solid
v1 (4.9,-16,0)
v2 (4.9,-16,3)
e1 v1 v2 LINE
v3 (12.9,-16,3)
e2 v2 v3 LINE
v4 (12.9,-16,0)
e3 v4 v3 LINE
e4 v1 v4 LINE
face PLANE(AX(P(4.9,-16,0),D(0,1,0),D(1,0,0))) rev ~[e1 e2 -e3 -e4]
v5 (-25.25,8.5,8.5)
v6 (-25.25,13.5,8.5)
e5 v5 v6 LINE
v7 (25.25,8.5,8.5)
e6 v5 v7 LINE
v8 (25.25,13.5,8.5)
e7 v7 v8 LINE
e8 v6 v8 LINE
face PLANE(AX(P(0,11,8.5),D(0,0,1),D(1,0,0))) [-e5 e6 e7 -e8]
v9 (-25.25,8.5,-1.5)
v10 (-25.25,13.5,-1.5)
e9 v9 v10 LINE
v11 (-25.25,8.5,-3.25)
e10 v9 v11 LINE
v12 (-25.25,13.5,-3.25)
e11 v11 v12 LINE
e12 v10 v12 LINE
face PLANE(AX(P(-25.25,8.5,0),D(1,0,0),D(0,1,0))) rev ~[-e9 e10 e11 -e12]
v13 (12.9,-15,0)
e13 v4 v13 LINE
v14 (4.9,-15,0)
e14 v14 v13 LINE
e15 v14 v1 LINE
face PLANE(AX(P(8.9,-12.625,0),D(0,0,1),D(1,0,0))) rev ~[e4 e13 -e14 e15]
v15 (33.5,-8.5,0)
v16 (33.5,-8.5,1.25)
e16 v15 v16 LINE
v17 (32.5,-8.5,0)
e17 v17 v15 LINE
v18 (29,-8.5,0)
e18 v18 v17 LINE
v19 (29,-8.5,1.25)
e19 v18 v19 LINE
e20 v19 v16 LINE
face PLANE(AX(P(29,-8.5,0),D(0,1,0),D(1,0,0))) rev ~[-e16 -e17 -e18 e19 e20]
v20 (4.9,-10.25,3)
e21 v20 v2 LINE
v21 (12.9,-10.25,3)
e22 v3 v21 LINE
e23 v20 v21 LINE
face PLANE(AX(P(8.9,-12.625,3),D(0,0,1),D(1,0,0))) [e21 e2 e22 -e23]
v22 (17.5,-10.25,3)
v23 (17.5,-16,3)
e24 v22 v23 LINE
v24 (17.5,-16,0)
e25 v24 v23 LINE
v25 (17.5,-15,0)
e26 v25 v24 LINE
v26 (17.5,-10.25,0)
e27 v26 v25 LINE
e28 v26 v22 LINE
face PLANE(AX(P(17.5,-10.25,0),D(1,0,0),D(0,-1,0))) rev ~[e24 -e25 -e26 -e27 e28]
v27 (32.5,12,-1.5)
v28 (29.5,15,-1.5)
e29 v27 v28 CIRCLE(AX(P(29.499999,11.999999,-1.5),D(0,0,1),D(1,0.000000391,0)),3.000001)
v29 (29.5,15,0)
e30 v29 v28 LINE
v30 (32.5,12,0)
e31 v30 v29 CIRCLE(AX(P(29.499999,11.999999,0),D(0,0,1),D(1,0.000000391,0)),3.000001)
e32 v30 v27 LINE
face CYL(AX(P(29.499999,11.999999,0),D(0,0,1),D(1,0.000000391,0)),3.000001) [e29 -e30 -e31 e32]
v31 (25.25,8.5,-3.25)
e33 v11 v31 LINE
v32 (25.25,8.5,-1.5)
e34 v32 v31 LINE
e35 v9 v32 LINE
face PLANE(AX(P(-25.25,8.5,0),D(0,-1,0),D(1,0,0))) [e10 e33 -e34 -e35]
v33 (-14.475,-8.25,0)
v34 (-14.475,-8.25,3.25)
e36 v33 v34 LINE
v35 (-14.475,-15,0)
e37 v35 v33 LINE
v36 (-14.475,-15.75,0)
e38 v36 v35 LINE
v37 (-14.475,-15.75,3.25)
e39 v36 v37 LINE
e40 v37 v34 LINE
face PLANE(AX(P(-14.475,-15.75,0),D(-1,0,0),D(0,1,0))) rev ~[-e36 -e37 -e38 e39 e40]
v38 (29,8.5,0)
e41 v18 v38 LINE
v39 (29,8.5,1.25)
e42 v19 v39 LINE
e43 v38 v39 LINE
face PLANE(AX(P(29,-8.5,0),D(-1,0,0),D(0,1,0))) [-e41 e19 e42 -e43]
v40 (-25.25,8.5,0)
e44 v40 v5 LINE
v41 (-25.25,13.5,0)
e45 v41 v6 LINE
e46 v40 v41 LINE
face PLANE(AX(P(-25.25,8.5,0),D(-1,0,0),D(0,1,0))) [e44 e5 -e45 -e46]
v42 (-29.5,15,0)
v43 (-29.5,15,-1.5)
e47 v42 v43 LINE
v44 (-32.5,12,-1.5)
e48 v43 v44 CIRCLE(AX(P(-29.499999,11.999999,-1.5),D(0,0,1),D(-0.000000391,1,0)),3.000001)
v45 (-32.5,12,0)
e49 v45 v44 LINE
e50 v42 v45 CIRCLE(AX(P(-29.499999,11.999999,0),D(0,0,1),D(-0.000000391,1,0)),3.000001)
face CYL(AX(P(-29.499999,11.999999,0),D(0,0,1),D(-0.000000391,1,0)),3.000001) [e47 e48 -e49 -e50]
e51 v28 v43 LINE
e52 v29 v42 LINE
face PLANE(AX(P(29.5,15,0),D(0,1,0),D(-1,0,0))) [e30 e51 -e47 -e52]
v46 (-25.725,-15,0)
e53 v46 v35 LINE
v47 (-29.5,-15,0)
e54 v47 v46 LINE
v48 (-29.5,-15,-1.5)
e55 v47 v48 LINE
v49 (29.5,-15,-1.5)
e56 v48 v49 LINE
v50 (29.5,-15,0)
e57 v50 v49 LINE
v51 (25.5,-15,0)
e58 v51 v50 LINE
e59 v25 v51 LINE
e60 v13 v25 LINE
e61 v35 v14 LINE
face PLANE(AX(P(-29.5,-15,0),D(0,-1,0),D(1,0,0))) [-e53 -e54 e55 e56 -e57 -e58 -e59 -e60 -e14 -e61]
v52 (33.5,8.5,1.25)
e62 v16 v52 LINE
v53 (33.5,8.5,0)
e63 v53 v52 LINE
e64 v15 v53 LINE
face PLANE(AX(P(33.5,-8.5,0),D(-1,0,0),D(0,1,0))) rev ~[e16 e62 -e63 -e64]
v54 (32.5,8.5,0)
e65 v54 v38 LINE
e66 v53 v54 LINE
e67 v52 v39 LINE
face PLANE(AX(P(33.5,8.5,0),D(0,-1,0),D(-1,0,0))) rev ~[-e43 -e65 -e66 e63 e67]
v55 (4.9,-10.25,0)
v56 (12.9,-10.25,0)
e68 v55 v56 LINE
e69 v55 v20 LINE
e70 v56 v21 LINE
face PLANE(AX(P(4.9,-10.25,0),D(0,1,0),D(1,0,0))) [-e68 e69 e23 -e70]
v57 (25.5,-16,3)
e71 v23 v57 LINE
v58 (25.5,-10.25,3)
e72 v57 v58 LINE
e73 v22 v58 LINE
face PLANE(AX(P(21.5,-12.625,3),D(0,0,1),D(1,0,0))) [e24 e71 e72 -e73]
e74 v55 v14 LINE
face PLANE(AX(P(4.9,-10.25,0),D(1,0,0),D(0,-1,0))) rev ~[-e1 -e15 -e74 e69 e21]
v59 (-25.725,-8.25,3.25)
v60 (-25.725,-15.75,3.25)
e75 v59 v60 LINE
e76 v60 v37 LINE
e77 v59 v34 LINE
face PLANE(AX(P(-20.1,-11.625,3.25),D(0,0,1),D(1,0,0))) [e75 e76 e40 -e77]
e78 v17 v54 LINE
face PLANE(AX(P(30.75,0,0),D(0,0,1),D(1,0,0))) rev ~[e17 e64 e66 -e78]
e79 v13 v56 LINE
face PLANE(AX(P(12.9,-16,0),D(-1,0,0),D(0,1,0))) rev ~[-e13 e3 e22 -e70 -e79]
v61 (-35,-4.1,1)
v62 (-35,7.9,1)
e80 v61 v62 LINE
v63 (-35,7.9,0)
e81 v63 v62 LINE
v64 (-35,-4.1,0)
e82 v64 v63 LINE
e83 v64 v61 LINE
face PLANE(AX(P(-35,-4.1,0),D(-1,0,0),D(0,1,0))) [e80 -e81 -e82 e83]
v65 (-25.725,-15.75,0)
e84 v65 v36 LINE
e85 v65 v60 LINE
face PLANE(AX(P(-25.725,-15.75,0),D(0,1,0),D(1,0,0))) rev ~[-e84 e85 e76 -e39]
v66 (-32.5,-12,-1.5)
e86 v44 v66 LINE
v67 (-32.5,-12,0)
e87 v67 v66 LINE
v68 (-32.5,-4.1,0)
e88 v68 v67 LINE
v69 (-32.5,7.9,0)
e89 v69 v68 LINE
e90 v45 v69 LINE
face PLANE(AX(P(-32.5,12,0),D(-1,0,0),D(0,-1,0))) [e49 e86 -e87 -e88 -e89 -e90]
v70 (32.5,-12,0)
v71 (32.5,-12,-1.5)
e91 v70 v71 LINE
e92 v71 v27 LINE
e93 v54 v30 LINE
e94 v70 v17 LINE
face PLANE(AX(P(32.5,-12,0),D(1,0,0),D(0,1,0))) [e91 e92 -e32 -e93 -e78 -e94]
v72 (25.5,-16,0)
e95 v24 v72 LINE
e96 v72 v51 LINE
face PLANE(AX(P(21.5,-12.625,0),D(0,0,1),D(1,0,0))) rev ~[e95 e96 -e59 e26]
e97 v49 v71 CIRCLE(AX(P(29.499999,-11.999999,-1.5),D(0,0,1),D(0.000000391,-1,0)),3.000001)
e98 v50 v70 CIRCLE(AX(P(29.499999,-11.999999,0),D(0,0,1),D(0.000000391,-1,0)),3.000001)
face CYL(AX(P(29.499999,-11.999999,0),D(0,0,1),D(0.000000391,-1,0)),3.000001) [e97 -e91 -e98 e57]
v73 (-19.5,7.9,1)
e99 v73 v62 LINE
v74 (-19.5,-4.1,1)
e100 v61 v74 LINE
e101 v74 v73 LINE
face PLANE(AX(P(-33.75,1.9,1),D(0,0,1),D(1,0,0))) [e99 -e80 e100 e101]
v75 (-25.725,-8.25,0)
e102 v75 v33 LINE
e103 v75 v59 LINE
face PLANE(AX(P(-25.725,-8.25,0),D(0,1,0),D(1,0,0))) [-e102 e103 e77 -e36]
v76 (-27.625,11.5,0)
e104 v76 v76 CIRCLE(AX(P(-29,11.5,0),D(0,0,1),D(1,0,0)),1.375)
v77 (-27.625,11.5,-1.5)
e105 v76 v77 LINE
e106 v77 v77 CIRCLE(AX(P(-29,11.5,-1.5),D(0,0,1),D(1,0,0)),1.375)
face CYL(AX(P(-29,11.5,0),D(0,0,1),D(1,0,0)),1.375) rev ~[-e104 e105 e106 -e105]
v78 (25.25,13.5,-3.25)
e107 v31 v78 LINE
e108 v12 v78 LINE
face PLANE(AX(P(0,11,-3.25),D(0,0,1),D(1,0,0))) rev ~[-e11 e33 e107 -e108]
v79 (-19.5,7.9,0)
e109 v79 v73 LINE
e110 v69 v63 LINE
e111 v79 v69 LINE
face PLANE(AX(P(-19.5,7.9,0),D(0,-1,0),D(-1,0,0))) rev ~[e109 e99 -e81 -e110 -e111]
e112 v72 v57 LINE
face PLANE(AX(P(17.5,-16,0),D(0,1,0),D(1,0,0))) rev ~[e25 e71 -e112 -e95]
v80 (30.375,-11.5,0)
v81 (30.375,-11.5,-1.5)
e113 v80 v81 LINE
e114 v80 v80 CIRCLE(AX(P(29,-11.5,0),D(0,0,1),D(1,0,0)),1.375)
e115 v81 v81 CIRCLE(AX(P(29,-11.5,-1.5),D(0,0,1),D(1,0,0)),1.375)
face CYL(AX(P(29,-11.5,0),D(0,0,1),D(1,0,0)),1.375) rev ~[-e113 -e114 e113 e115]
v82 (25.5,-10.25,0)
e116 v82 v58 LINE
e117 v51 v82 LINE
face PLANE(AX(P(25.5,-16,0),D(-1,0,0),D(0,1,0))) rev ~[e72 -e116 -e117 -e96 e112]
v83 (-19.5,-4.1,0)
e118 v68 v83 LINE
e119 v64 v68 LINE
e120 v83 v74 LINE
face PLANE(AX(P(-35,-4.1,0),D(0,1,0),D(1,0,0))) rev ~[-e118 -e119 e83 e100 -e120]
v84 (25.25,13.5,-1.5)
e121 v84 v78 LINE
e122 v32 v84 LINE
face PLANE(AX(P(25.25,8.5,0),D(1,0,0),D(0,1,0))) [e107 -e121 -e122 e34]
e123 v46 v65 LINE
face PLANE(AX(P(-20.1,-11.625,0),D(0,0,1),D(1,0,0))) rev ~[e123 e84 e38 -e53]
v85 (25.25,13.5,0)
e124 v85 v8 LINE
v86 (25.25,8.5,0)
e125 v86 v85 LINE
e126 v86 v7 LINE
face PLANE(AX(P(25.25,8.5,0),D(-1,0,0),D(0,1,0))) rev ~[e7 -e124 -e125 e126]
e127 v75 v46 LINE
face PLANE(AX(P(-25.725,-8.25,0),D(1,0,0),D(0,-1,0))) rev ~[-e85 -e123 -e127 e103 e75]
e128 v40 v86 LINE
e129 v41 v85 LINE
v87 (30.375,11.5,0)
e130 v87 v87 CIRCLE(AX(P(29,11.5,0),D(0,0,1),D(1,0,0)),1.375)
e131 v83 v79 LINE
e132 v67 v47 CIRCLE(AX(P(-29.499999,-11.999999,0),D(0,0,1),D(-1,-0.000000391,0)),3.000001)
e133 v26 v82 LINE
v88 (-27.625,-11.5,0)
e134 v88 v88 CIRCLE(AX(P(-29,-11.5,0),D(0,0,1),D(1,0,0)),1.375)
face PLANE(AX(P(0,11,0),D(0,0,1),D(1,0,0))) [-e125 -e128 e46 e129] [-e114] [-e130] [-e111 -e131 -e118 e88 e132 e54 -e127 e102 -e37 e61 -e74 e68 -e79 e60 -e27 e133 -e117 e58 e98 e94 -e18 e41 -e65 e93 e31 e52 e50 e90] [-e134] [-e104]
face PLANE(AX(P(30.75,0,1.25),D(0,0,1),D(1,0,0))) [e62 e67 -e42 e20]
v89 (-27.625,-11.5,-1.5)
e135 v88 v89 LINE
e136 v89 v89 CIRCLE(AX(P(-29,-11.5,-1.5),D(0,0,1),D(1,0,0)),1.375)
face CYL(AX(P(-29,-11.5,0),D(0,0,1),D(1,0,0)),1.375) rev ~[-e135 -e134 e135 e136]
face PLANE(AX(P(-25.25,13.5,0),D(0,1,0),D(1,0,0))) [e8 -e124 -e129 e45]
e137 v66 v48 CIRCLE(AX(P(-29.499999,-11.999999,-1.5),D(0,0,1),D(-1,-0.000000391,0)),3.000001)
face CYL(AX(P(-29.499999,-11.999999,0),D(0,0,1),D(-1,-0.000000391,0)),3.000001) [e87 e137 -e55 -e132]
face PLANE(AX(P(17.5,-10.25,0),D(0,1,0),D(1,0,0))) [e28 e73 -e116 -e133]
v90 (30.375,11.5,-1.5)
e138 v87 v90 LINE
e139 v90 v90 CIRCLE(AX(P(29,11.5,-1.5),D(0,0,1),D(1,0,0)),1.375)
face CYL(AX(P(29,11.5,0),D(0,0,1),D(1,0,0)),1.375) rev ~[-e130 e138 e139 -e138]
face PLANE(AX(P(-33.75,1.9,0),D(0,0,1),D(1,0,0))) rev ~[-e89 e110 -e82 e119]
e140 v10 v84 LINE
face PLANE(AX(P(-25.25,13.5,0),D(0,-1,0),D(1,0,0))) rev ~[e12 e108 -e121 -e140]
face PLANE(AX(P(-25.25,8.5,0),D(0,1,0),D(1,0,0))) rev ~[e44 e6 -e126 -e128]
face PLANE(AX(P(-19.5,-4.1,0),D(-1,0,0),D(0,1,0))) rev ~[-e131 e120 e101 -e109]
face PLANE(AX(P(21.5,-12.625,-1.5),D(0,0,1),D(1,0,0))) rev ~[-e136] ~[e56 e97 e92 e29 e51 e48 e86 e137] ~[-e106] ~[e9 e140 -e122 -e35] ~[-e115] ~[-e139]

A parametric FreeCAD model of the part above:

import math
import FreeCAD as App
import Part
import Sketcher
from FreeCAD import Vector
Q = App.Units.Quantity


def add_polygon(sketch, points):
    """Adds a closed chain of lines whose ends are joined by coincident constraints."""
    first, n = sketch.GeometryCount, len(points)
    for a, b in zip(points, points[1:] + points[:1]):
        sketch.addGeometry(Part.LineSegment(App.Vector(*a, 0), App.Vector(*b, 0)), False)
    for i in range(n):
        sketch.addConstraint(Sketcher.Constraint("Coincident", first + i, 2, first + (i + 1) % n, 1))

doc = App.newDocument("Part")
params = doc.addObject("Spreadsheet::Sheet", "Params")
for row, (alias, value) in enumerate([
    ("sketch1_radius", "3.000001 mm"),
    ("sketch1_diameter", "2.75 mm"),
    ("sketch1_width", "59 mm"),
    ("sketch1_height", "24 mm"),
    ("pad1_length", "1.5 mm"),
    ("sketch2_height", "5 mm"),
    ("sketch2_width", "50.5 mm"),
    ("pad2_length", "3.25 mm"),
    ("sketch3_height", "12 mm"),
    ("sketch3_width", "15.5 mm"),
    ("pad3_length", "1 mm"),
    ("sketch4_height", "7.5 mm"),
    ("sketch4_width", "11.25 mm"),
    ("pad4_length", "3.25 mm"),
    ("sketch5_width", "8 mm"),
    ("sketch5_height", "5.75 mm"),
    ("pad5_length", "3 mm"),
    ("sketch6_height", "17 mm"),
    ("sketch6_width", "4.5 mm"),
    ("pad6_length", "1.25 mm"),
    ("sketch7_height", "5 mm"),
    ("sketch7_width", "50.5 mm"),
    ("pad7_length", "8.5 mm"),
], start=1):
    params.set(f"A{row}", alias)
    params.set(f"B{row}", "=" + value)
    params.setAlias(f"B{row}", alias)

body = doc.addObject("PartDesign::Body", "Body")

# Sketch on XY plane
sketch1 = body.newObject("Sketcher::SketchObject", "Sketch")
sketch1.AttachmentSupport = (doc.getObject("XY_Plane"), [""])
sketch1.MapMode = "FlatFace"
sketch1.addGeometry([
    Part.ArcOfCircle(Part.Circle(Vector(29.5, -12, 0), Vector(0, 0, 1), 3), math.radians(-90), math.radians(0)),  # 0
    Part.LineSegment(Vector(32.5, -12, 0), Vector(32.5, 12, 0)),  # 1
    Part.ArcOfCircle(Part.Circle(Vector(29.5, 12, 0), Vector(0, 0, 1), 3), math.radians(0), math.radians(90)),  # 2
    Part.LineSegment(Vector(29.5, 15, 0), Vector(-29.5, 15, 0)),  # 3
    Part.ArcOfCircle(Part.Circle(Vector(-29.5, 12, 0), Vector(0, 0, 1), 3), math.radians(90), math.radians(180)),  # 4
    Part.LineSegment(Vector(-32.5, 12, 0), Vector(-32.5, -12, 0)),  # 5
    Part.ArcOfCircle(Part.Circle(Vector(-29.5, -12, 0), Vector(0, 0, 1), 3), math.radians(-180), math.radians(-90)),  # 6
    Part.LineSegment(Vector(-29.5, -15, 0), Vector(29.5, -15, 0)),  # 7
    Part.Circle(Vector(-29, -11.5, 0), Vector(0, 0, 1), 1.4),  # 8
    Part.Circle(Vector(29, -11.5, 0), Vector(0, 0, 1), 1.4),  # 9
    Part.Circle(Vector(-29, 11.5, 0), Vector(0, 0, 1), 1.4),  # 10
    Part.Circle(Vector(29, 11.5, 0), Vector(0, 0, 1), 1.4),  # 11
], False)
sketch1.addConstraint([
    Sketcher.Constraint("Tangent", 0, 2, 1, 1),
    Sketcher.Constraint("Tangent", 1, 2, 2, 1),
    Sketcher.Constraint("Tangent", 2, 2, 3, 1),
    Sketcher.Constraint("Tangent", 3, 2, 4, 1),
    Sketcher.Constraint("Tangent", 4, 2, 5, 1),
    Sketcher.Constraint("Tangent", 5, 2, 6, 1),
    Sketcher.Constraint("Tangent", 6, 2, 7, 1),
    Sketcher.Constraint("Tangent", 7, 2, 0, 1),
    Sketcher.Constraint("Vertical", 1),
    Sketcher.Constraint("Horizontal", 3),
    Sketcher.Constraint("Vertical", 5),
    Sketcher.Constraint("Horizontal", 7),
    Sketcher.Constraint("Equal", 0, 2),
    Sketcher.Constraint("Equal", 2, 4),
    Sketcher.Constraint("Equal", 4, 6),
    Sketcher.Constraint("Equal", 8, 9),
    Sketcher.Constraint("Equal", 9, 10),
    Sketcher.Constraint("Equal", 10, 11),
    Sketcher.Constraint("Symmetric", 0, 3, 4, 3, -1, 1),
    Sketcher.Constraint("Symmetric", 9, 3, 10, 3, -1, 1),
    Sketcher.Constraint("Symmetric", 8, 3, 11, 3, -1, 1),
    Sketcher.Constraint("Symmetric", 8, 3, 9, 3, -2),
    Sketcher.Constraint("Radius", 0, Q("3.000001 mm")),
    Sketcher.Constraint("Diameter", 8, Q("2.75 mm")),
    Sketcher.Constraint("DistanceX", 3, 2, 3, 1, Q("59 mm")),
    Sketcher.Constraint("DistanceY", 1, 1, 1, 2, Q("24 mm")),
    Sketcher.Constraint("DistanceX", 8, 3, -1, 1, Q("29 mm")),
    Sketcher.Constraint("DistanceY", 8, 3, 10, 3, Q("23 mm")),
])
sketch1.setExpression("Constraints[22]", "Params.sketch1_radius")
sketch1.setExpression("Constraints[23]", "Params.sketch1_diameter")
sketch1.setExpression("Constraints[24]", "Params.sketch1_width")
sketch1.setExpression("Constraints[25]", "Params.sketch1_height")
pad1 = body.newObject("PartDesign::Pad", "Pad")
pad1.Profile = sketch1
pad1.setExpression("Length", "Params.pad1_length")
pad1.Reversed = True

# Sketch on XY plane
sketch2 = body.newObject("Sketcher::SketchObject", "Sketch001")
sketch2.AttachmentSupport = (doc.getObject("XY_Plane"), [""])
sketch2.MapMode = "FlatFace"
add_polygon(sketch2, [(-25, 14), (-25, 8), (25, 8), (25, 14)])  # lines 0-3
sketch2.addConstraint([
    Sketcher.Constraint("Vertical", 0),
    Sketcher.Constraint("Horizontal", 1),
    Sketcher.Constraint("Vertical", 2),
    Sketcher.Constraint("Horizontal", 3),
    Sketcher.Constraint("DistanceY", 0, 2, 0, 1, Q("5 mm")),
    Sketcher.Constraint("DistanceX", 1, 1, 1, 2, Q("50.5 mm")),
    Sketcher.Constraint("DistanceY", -1, 1, 0, 2, Q("8.5 mm")),
    Sketcher.Constraint("DistanceX", 0, 2, -1, 1, Q("25.25 mm")),
])
sketch2.setExpression("Constraints[8]", "Params.sketch2_height")
sketch2.setExpression("Constraints[9]", "Params.sketch2_width")
pad2 = body.newObject("PartDesign::Pad", "Pad001")
pad2.Profile = sketch2
pad2.setExpression("Length", "Params.pad2_length")
pad2.Reversed = True

# Sketch on XY plane
sketch3 = body.newObject("Sketcher::SketchObject", "Sketch002")
sketch3.AttachmentSupport = (doc.getObject("XY_Plane"), [""])
sketch3.MapMode = "FlatFace"
add_polygon(sketch3, [(-35, 8), (-35, -4), (-20, -4), (-20, 8)])  # lines 0-3
sketch3.addConstraint([
    Sketcher.Constraint("Vertical", 0),
    Sketcher.Constraint("Horizontal", 1),
    Sketcher.Constraint("Vertical", 2),
    Sketcher.Constraint("Horizontal", 3),
    Sketcher.Constraint("DistanceY", 0, 2, 0, 1, Q("12 mm")),
    Sketcher.Constraint("DistanceX", 1, 1, 1, 2, Q("15.5 mm")),
    Sketcher.Constraint("DistanceX", 0, 2, -1, 1, Q("35 mm")),
    Sketcher.Constraint("DistanceY", 0, 2, -1, 1, Q("4.1 mm")),
])
sketch3.setExpression("Constraints[8]", "Params.sketch3_height")
sketch3.setExpression("Constraints[9]", "Params.sketch3_width")
pad3 = body.newObject("PartDesign::Pad", "Pad002")
pad3.Profile = sketch3
pad3.setExpression("Length", "Params.pad3_length")

# Sketch on XY plane
sketch4 = body.newObject("Sketcher::SketchObject", "Sketch003")
sketch4.AttachmentSupport = (doc.getObject("XY_Plane"), [""])
sketch4.MapMode = "FlatFace"
add_polygon(sketch4, [(-26, -8), (-26, -16), (-14, -16), (-14, -8)])  # lines 0-3
sketch4.addConstraint([
    Sketcher.Constraint("Vertical", 0),
    Sketcher.Constraint("Horizontal", 1),
    Sketcher.Constraint("Vertical", 2),
    Sketcher.Constraint("Horizontal", 3),
    Sketcher.Constraint("DistanceY", 0, 2, 0, 1, Q("7.5 mm")),
    Sketcher.Constraint("DistanceX", 1, 1, 1, 2, Q("11.25 mm")),
    Sketcher.Constraint("DistanceY", 0, 2, -1, 1, Q("15.75 mm")),
    Sketcher.Constraint("DistanceX", 0, 2, -1, 1, Q("25.725 mm")),
])
sketch4.setExpression("Constraints[8]", "Params.sketch4_height")
sketch4.setExpression("Constraints[9]", "Params.sketch4_width")
pad4 = body.newObject("PartDesign::Pad", "Pad003")
pad4.Profile = sketch4
pad4.setExpression("Length", "Params.pad4_length")

# Sketch on XY plane
sketch5 = body.newObject("Sketcher::SketchObject", "Sketch004")
sketch5.AttachmentSupport = (doc.getObject("XY_Plane"), [""])
sketch5.MapMode = "FlatFace"
add_polygon(sketch5, [(5, -10), (5, -16), (13, -16), (13, -10)])  # lines 0-3
add_polygon(sketch5, [(18, -10), (18, -16), (26, -16), (26, -10)])  # lines 4-7
sketch5.addConstraint([
    Sketcher.Constraint("Vertical", 0),
    Sketcher.Constraint("Horizontal", 1),
    Sketcher.Constraint("Vertical", 2),
    Sketcher.Constraint("Horizontal", 3),
    Sketcher.Constraint("Vertical", 4),
    Sketcher.Constraint("Horizontal", 5),
    Sketcher.Constraint("Vertical", 6),
    Sketcher.Constraint("Horizontal", 7),
    Sketcher.Constraint("Horizontal", 1, 2, 4, 2),
    Sketcher.Constraint("Horizontal", 3, 2, 6, 2),
    Sketcher.Constraint("Equal", 3, 5),
    Sketcher.Constraint("DistanceX", 1, 1, 1, 2, Q("8 mm")),
    Sketcher.Constraint("DistanceY", 0, 2, -1, 1, Q("16 mm")),
    Sketcher.Constraint("DistanceY", 0, 2, 0, 1, Q("5.75 mm")),
    Sketcher.Constraint("DistanceX", -1, 1, 0, 2, Q("4.9 mm")),
    Sketcher.Constraint("DistanceX", -1, 1, 4, 2, Q("17.5 mm")),
])
sketch5.setExpression("Constraints[19]", "Params.sketch5_width")
sketch5.setExpression("Constraints[21]", "Params.sketch5_height")
pad5 = body.newObject("PartDesign::Pad", "Pad004")
pad5.Profile = sketch5
pad5.setExpression("Length", "Params.pad5_length")

# Sketch on XY plane
sketch6 = body.newObject("Sketcher::SketchObject", "Sketch005")
sketch6.AttachmentSupport = (doc.getObject("XY_Plane"), [""])
sketch6.MapMode = "FlatFace"
add_polygon(sketch6, [(29, 8.5), (29, -8.5), (33.5, -8.5), (33.5, 8.5)])  # lines 0-3
sketch6.addConstraint([
    Sketcher.Constraint("Vertical", 0),
    Sketcher.Constraint("Horizontal", 1),
    Sketcher.Constraint("Vertical", 2),
    Sketcher.Constraint("Horizontal", 3),
    Sketcher.Constraint("DistanceY", 0, 2, 0, 1, Q("17 mm")),
    Sketcher.Constraint("DistanceX", 1, 1, 1, 2, Q("4.5 mm")),
    Sketcher.Constraint("DistanceX", -1, 1, 0, 2, Q("29 mm")),
    Sketcher.Constraint("DistanceY", 0, 2, -1, 1, Q("8.5 mm")),
])
sketch6.setExpression("Constraints[8]", "Params.sketch6_height")
sketch6.setExpression("Constraints[9]", "Params.sketch6_width")
pad6 = body.newObject("PartDesign::Pad", "Pad005")
pad6.Profile = sketch6
pad6.setExpression("Length", "Params.pad6_length")

# Sketch on XY plane
sketch7 = body.newObject("Sketcher::SketchObject", "Sketch006")
sketch7.AttachmentSupport = (doc.getObject("XY_Plane"), [""])
sketch7.MapMode = "FlatFace"
add_polygon(sketch7, [(-25, 14), (-25, 8), (25, 8), (25, 14)])  # lines 0-3
sketch7.addConstraint([
    Sketcher.Constraint("Vertical", 0),
    Sketcher.Constraint("Horizontal", 1),
    Sketcher.Constraint("Vertical", 2),
    Sketcher.Constraint("Horizontal", 3),
    Sketcher.Constraint("DistanceY", 0, 2, 0, 1, Q("5 mm")),
    Sketcher.Constraint("DistanceX", 1, 1, 1, 2, Q("50.5 mm")),
    Sketcher.Constraint("DistanceY", -1, 1, 0, 2, Q("8.5 mm")),
    Sketcher.Constraint("DistanceX", 0, 2, -1, 1, Q("25.25 mm")),
])
sketch7.setExpression("Constraints[8]", "Params.sketch7_height")
sketch7.setExpression("Constraints[9]", "Params.sketch7_width")
pad7 = body.newObject("PartDesign::Pad", "Pad006")
pad7.Profile = sketch7
pad7.setExpression("Length", "Params.pad7_length")

doc.recompute()
